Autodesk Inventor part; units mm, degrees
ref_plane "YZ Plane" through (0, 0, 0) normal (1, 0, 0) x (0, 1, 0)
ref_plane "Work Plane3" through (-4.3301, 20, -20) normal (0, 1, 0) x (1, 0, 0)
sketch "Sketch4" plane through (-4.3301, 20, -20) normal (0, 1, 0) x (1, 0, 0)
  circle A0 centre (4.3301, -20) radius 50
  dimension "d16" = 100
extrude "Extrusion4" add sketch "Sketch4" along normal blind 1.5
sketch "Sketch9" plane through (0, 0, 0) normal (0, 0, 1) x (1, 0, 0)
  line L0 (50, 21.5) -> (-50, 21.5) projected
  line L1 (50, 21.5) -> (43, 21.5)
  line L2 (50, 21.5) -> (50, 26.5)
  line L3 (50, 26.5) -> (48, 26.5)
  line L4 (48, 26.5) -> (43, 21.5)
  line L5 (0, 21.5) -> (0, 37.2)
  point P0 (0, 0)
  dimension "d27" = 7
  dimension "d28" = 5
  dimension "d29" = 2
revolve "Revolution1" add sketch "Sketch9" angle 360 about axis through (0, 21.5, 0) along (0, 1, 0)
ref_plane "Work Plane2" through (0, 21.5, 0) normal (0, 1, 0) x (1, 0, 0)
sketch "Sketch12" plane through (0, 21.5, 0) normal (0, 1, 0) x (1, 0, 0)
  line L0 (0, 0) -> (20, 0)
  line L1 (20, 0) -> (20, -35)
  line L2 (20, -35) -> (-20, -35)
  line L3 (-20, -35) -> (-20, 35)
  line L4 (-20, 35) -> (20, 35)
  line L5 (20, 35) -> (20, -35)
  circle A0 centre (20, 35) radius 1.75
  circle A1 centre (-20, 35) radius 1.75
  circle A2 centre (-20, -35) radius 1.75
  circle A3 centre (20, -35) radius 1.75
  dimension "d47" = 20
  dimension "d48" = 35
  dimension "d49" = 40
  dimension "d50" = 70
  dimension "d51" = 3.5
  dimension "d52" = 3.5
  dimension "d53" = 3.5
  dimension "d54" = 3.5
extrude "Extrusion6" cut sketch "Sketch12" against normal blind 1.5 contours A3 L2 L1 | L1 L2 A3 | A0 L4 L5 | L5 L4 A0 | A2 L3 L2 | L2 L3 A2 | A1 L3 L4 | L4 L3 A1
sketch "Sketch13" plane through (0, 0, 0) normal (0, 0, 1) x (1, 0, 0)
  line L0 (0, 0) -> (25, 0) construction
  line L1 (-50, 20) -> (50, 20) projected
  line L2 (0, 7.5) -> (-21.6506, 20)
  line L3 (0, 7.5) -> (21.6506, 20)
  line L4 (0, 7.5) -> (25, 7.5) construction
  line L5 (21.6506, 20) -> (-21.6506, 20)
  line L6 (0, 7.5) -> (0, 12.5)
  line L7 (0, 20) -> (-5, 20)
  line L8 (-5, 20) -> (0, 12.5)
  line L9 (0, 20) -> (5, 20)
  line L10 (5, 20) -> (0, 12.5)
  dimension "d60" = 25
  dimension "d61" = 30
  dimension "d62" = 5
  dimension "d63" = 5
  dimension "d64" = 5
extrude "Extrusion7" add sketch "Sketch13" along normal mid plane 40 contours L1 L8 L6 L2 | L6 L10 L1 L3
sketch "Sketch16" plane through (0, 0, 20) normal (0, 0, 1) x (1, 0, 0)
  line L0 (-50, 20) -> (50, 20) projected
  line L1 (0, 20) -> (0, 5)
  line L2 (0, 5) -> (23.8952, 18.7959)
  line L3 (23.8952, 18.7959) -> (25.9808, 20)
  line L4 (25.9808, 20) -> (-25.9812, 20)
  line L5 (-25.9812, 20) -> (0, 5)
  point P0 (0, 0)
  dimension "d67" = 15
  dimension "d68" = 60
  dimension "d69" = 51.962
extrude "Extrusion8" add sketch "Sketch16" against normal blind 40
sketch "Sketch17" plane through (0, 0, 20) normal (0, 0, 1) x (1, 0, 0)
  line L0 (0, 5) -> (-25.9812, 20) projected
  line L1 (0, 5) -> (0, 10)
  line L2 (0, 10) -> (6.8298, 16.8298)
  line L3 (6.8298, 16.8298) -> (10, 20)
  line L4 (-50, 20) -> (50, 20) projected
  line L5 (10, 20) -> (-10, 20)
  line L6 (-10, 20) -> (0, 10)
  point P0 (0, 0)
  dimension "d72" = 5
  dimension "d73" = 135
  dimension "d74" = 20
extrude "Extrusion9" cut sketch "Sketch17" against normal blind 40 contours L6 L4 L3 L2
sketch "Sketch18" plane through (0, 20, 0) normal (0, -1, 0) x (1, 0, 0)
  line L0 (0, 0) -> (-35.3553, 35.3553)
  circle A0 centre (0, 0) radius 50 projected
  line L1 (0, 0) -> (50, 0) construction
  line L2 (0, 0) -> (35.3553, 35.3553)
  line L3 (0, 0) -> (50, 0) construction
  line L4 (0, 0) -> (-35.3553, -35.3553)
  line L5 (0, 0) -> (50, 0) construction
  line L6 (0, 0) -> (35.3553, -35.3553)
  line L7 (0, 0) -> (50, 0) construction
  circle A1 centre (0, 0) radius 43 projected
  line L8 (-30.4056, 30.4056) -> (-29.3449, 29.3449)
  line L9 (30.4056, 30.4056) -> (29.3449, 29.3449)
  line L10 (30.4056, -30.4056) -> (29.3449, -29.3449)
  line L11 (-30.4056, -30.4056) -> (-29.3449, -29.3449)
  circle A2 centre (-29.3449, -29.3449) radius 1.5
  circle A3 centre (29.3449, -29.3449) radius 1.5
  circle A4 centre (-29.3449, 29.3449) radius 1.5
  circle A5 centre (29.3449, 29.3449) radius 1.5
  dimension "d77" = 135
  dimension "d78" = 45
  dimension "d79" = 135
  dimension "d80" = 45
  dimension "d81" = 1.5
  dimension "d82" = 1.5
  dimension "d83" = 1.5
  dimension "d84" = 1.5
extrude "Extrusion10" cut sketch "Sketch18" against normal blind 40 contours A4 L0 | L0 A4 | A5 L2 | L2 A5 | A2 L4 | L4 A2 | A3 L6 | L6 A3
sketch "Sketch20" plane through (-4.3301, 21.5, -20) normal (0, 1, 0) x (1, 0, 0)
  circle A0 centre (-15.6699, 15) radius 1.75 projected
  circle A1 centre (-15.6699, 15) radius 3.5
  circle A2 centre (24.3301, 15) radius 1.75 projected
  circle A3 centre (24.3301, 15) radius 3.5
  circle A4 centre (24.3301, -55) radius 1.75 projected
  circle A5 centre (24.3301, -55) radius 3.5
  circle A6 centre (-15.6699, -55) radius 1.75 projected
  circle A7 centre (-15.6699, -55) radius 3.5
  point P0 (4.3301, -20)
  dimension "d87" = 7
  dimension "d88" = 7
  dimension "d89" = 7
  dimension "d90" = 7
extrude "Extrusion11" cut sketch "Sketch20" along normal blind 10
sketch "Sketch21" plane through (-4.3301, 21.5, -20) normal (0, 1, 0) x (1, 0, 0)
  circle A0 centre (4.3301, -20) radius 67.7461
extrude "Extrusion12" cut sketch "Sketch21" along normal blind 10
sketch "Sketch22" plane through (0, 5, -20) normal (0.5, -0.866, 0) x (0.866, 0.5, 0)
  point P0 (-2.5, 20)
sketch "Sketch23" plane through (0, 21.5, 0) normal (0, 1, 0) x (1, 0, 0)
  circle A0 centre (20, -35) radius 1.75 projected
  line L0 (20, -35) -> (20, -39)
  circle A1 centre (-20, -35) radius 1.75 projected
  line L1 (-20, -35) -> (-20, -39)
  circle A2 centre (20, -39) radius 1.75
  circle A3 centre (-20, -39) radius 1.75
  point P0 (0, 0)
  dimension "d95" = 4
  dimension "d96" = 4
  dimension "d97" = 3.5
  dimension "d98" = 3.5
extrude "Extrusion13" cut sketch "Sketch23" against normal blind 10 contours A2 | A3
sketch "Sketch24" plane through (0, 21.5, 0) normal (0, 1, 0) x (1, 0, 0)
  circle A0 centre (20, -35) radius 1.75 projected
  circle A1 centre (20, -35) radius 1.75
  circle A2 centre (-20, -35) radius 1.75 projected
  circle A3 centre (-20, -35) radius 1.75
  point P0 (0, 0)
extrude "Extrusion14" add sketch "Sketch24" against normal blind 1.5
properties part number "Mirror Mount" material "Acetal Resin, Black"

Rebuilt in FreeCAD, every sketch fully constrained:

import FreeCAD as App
import Part
import Sketcher
from FreeCAD import Vector
Q = App.Units.Quantity

doc = App.newDocument("Part")
body = doc.addObject("PartDesign::Body", "Body")

sketch1 = doc.addObject("Sketcher::SketchObject", "Sketch")
body.addObject(sketch1)
sketch1.AttachmentSupport = (doc.XZ_Plane, [""])
sketch1.MapMode = "FlatFace"
sketch1.AttachmentOffset = App.Placement(Vector(0, 0, -20), App.Rotation())
sketch1.addGeometry(Part.Circle(Vector(0, 0, 0), Vector(0, 0, 1), 50), False)
sketch1.addConstraint(Sketcher.Constraint("Coincident", 0, 3, -1, 1))
sketch1.addConstraint(Sketcher.Constraint("Diameter", 0, 100.0))
pad1 = doc.addObject("PartDesign::Pad", "Pad")
body.addObject(pad1)
pad1.Profile = sketch1
pad1.Length = 1.5
pad1.Reversed = True

sketch2 = doc.addObject("Sketcher::SketchObject", "Sketch001")
body.addObject(sketch2)
sketch2.AttachmentSupport = (doc.XY_Plane, [""])
sketch2.MapMode = "FlatFace"
sketch2.addGeometry(Part.LineSegment(Vector(43, 21.5, 0), Vector(50, 21.5, 0)), False)
sketch2.addGeometry(Part.LineSegment(Vector(50, 21.5, 0), Vector(50, 26.5, 0)), False)
sketch2.addGeometry(Part.LineSegment(Vector(50, 26.5, 0), Vector(48, 26.5, 0)), False)
sketch2.addGeometry(Part.LineSegment(Vector(48, 26.5, 0), Vector(43, 21.5, 0)), False)
sketch2.addConstraint(Sketcher.Constraint("Coincident", 0, 2, 1, 1))
sketch2.addConstraint(Sketcher.Constraint("Coincident", 1, 2, 2, 1))
sketch2.addConstraint(Sketcher.Constraint("Coincident", 2, 2, 3, 1))
sketch2.addConstraint(Sketcher.Constraint("Coincident", 3, 2, 0, 1))
sketch2.addConstraint(Sketcher.Constraint("Horizontal", 0))
sketch2.addConstraint(Sketcher.Constraint("Vertical", 1))
sketch2.addConstraint(Sketcher.Constraint("Horizontal", 2))
sketch2.addConstraint(Sketcher.Constraint("DistanceX", 0, 1, 0, 2, 7.0))
sketch2.addConstraint(Sketcher.Constraint("DistanceX", 2, 2, 2, 1, 2.0))
sketch2.addConstraint(Sketcher.Constraint("DistanceY", 1, 1, 1, 2, 5.0))
sketch2.addConstraint(Sketcher.Constraint("DistanceX", -1, 1, 0, 2, 50.0))
sketch2.addConstraint(Sketcher.Constraint("DistanceY", -1, 1, 0, 2, 21.5))
revolution = doc.addObject("PartDesign::Revolution", "Revolution")
body.addObject(revolution)
revolution.Profile = sketch2
revolution.ReferenceAxis = (sketch2, ["V_Axis"])
revolution.Angle = 360

sketch3 = doc.addObject("Sketcher::SketchObject", "Sketch002")
body.addObject(sketch3)
sketch3.AttachmentSupport = (doc.XZ_Plane, [""])
sketch3.MapMode = "FlatFace"
sketch3.AttachmentOffset = App.Placement(Vector(0, 0, -21.5), App.Rotation())
sketch3.addGeometry(Part.Circle(Vector(20, 35, 0), Vector(0, 0, 1), 1.8), False)
sketch3.addGeometry(Part.Circle(Vector(20, -35, 0), Vector(0, 0, 1), 1.8), False)
sketch3.addGeometry(Part.Circle(Vector(-20, 35, 0), Vector(0, 0, 1), 1.8), False)
sketch3.addGeometry(Part.Circle(Vector(-20, -35, 0), Vector(0, 0, 1), 1.8), False)
sketch3.addConstraint(Sketcher.Constraint("Equal", 0, 1))
sketch3.addConstraint(Sketcher.Constraint("Equal", 1, 2))
sketch3.addConstraint(Sketcher.Constraint("Equal", 2, 3))
sketch3.addConstraint(Sketcher.Constraint("Symmetric", 1, 3, 2, 3, -1, 1))
sketch3.addConstraint(Sketcher.Constraint("Symmetric", 0, 3, 3, 3, -1, 1))
sketch3.addConstraint(Sketcher.Constraint("Symmetric", 0, 3, 2, 3, -2))
sketch3.addConstraint(Sketcher.Constraint("Diameter", 0, 3.5))
sketch3.addConstraint(Sketcher.Constraint("DistanceX", -1, 1, 0, 3, 20.0))
sketch3.addConstraint(Sketcher.Constraint("DistanceY", -1, 1, 0, 3, 35.0))
pocket1 = doc.addObject("PartDesign::Pocket", "Pocket")
body.addObject(pocket1)
pocket1.Profile = sketch3
pocket1.Length = 1.5
pocket1.Reversed = True

sketch4 = doc.addObject("Sketcher::SketchObject", "Sketch003")
body.addObject(sketch4)
sketch4.AttachmentSupport = (doc.XY_Plane, [""])
sketch4.MapMode = "FlatFace"
sketch4.addGeometry(Part.LineSegment(Vector(-5, 20, 0), Vector(-22, 20, 0)), False)
sketch4.addGeometry(Part.LineSegment(Vector(-22, 20, 0), Vector(0, 8, 0)), False)
sketch4.addGeometry(Part.LineSegment(Vector(0, 8, 0), Vector(22, 20, 0)), False)
sketch4.addGeometry(Part.LineSegment(Vector(22, 20, 0), Vector(5, 20, 0)), False)
sketch4.addGeometry(Part.LineSegment(Vector(5, 20, 0), Vector(0, 12, 0)), False)
sketch4.addGeometry(Part.LineSegment(Vector(0, 12, 0), Vector(-5, 20, 0)), False)
sketch4.addConstraint(Sketcher.Constraint("Coincident", 0, 2, 1, 1))
sketch4.addConstraint(Sketcher.Constraint("Coincident", 1, 2, 2, 1))
sketch4.addConstraint(Sketcher.Constraint("Coincident", 2, 2, 3, 1))
sketch4.addConstraint(Sketcher.Constraint("Coincident", 3, 2, 4, 1))
sketch4.addConstraint(Sketcher.Constraint("Coincident", 4, 2, 5, 1))
sketch4.addConstraint(Sketcher.Constraint("Coincident", 5, 2, 0, 1))
sketch4.addConstraint(Sketcher.Constraint("Horizontal", 0))
sketch4.addConstraint(Sketcher.Constraint("Horizontal", 3))
sketch4.addConstraint(Sketcher.Constraint("Symmetric", 0, 2, 2, 2, -2))
sketch4.addConstraint(Sketcher.Constraint("PointOnObject", 1, 2, -2))
sketch4.addConstraint(Sketcher.Constraint("PointOnObject", 4, 2, -2))
sketch4.addConstraint(Sketcher.Constraint("Equal", 0, 3))
sketch4.addConstraint(Sketcher.Constraint("Angle", 1, Q("-30 deg")))
sketch4.addConstraint(Sketcher.Constraint("Distance", 1, 25.0))
sketch4.addConstraint(Sketcher.Constraint("DistanceX", -1, 1, 3, 2, 5.0))
sketch4.addConstraint(Sketcher.Constraint("DistanceY", 1, 2, 4, 2, 5.0))
sketch4.addConstraint(Sketcher.Constraint("DistanceY", -1, 1, 0, 2, 20.0))
pad2 = doc.addObject("PartDesign::Pad", "Pad001")
body.addObject(pad2)
pad2.Profile = sketch4
pad2.Length = 40
pad2.Midplane = True

sketch5 = doc.addObject("Sketcher::SketchObject", "Sketch004")
body.addObject(sketch5)
sketch5.AttachmentSupport = (doc.XY_Plane, [""])
sketch5.MapMode = "FlatFace"
sketch5.AttachmentOffset = App.Placement(Vector(0, 0, 20), App.Rotation())
sketch5.addGeometry(Part.LineSegment(Vector(-26, 20, 0), Vector(0, 5, 0)), False)
sketch5.addGeometry(Part.LineSegment(Vector(0, 5, 0), Vector(23.9, 18.8, 0)), False)
sketch5.addGeometry(Part.LineSegment(Vector(23.9, 18.8, 0), Vector(26, 20, 0)), False)
sketch5.addGeometry(Part.LineSegment(Vector(26, 20, 0), Vector(-26, 20, 0)), False)
sketch5.addConstraint(Sketcher.Constraint("Coincident", 0, 2, 1, 1))
sketch5.addConstraint(Sketcher.Constraint("Coincident", 1, 2, 2, 1))
sketch5.addConstraint(Sketcher.Constraint("Coincident", 2, 2, 3, 1))
sketch5.addConstraint(Sketcher.Constraint("Coincident", 3, 2, 0, 1))
sketch5.addConstraint(Sketcher.Constraint("Horizontal", 3))
sketch5.addConstraint(Sketcher.Constraint("PointOnObject", 0, 2, -2))
sketch5.addConstraint(Sketcher.Constraint("Parallel", 1, 2))
sketch5.addConstraint(Sketcher.Constraint("DistanceY", 0, 2, 2, 2, 15.0))
sketch5.addConstraint(Sketcher.Constraint("DistanceX", 3, 2, 3, 1, 51.962))
sketch5.addConstraint(Sketcher.Constraint("Angle", 0, Q("-29.9996 deg")))
sketch5.addConstraint(Sketcher.Constraint("DistanceY", -1, 1, 0, 2, 5.0))
sketch5.addConstraint(Sketcher.Constraint("DistanceY", -1, 1, 1, 2, 18.796))
pad3 = doc.addObject("PartDesign::Pad", "Pad002")
body.addObject(pad3)
pad3.Profile = sketch5
pad3.Length = 40
pad3.Reversed = True

sketch6 = doc.addObject("Sketcher::SketchObject", "Sketch005")
body.addObject(sketch6)
sketch6.AttachmentSupport = (doc.XY_Plane, [""])
sketch6.MapMode = "FlatFace"
sketch6.AttachmentOffset = App.Placement(Vector(0, 0, 20), App.Rotation())
sketch6.addGeometry(Part.LineSegment(Vector(-10, 20, 0), Vector(0, 10, 0)), False)
sketch6.addGeometry(Part.LineSegment(Vector(0, 10, 0), Vector(10, 20, 0)), False)
sketch6.addGeometry(Part.LineSegment(Vector(10, 20, 0), Vector(-10, 20, 0)), False)
sketch6.addConstraint(Sketcher.Constraint("Coincident", 0, 2, 1, 1))
sketch6.addConstraint(Sketcher.Constraint("Coincident", 1, 2, 2, 1))
sketch6.addConstraint(Sketcher.Constraint("Coincident", 2, 2, 0, 1))
sketch6.addConstraint(Sketcher.Constraint("Horizontal", 2))
sketch6.addConstraint(Sketcher.Constraint("PointOnObject", 0, 2, -2))
sketch6.addConstraint(Sketcher.Constraint("Perpendicular", 0, 1))
sketch6.addConstraint(Sketcher.Constraint("Equal", 0, 1))
sketch6.addConstraint(Sketcher.Constraint("DistanceX", 2, 2, 2, 1, 20.0))
sketch6.addConstraint(Sketcher.Constraint("DistanceY", -1, 1, 1, 2, 20.0))
pocket2 = doc.addObject("PartDesign::Pocket", "Pocket001")
body.addObject(pocket2)
pocket2.Profile = sketch6
pocket2.Length = 40

sketch7 = doc.addObject("Sketcher::SketchObject", "Sketch006")
body.addObject(sketch7)
sketch7.AttachmentSupport = (doc.XZ_Plane, [""])
sketch7.MapMode = "FlatFace"
sketch7.AttachmentOffset = App.Placement(Vector(0, 0, -20), App.Rotation())
sketch7.addGeometry(Part.Circle(Vector(-29.3, 29.3, 0), Vector(0, 0, 1), 1.5), False)
sketch7.addGeometry(Part.Circle(Vector(29.3, 29.3, 0), Vector(0, 0, 1), 1.5), False)
sketch7.addGeometry(Part.Circle(Vector(-29.3, -29.3, 0), Vector(0, 0, 1), 1.5), False)
sketch7.addGeometry(Part.Circle(Vector(29.3, -29.3, 0), Vector(0, 0, 1), 1.5), False)
sketch7.addConstraint(Sketcher.Constraint("Equal", 0, 1))
sketch7.addConstraint(Sketcher.Constraint("Equal", 1, 2))
sketch7.addConstraint(Sketcher.Constraint("Equal", 2, 3))
sketch7.addConstraint(Sketcher.Constraint("Symmetric", 1, 3, 2, 3, -1, 1))
sketch7.addConstraint(Sketcher.Constraint("Symmetric", 0, 3, 3, 3, -1, 1))
sketch7.addConstraint(Sketcher.Constraint("Symmetric", 0, 3, 1, 3, -2))
sketch7.addConstraint(Sketcher.Constraint("Diameter", 0, 3.0))
sketch7.addConstraint(Sketcher.Constraint("DistanceX", 0, 3, -1, 1, 29.345))
sketch7.addConstraint(Sketcher.Constraint("DistanceY", -1, 1, 0, 3, 29.345))
pocket3 = doc.addObject("PartDesign::Pocket", "Pocket002")
body.addObject(pocket3)
pocket3.Profile = sketch7
pocket3.Length = 40

sketch8 = doc.addObject("Sketcher::SketchObject", "Sketch007")
body.addObject(sketch8)
sketch8.AttachmentSupport = (doc.XZ_Plane, [""])
sketch8.MapMode = "FlatFace"
sketch8.AttachmentOffset = App.Placement(Vector(0, 0, -21.5), App.Rotation())
sketch8.addGeometry(Part.Circle(Vector(-20, -35, 0), Vector(0, 0, 1), 3.5), False)
sketch8.addGeometry(Part.Circle(Vector(-20, -35, 0), Vector(0, 0, 1), 1.8), False)
sketch8.addGeometry(Part.Circle(Vector(20, -35, 0), Vector(0, 0, 1), 3.5), False)
sketch8.addGeometry(Part.Circle(Vector(20, -35, 0), Vector(0, 0, 1), 1.8), False)
sketch8.addGeometry(Part.Circle(Vector(20, 35, 0), Vector(0, 0, 1), 3.5), False)
sketch8.addGeometry(Part.Circle(Vector(20, 35, 0), Vector(0, 0, 1), 1.8), False)
sketch8.addGeometry(Part.Circle(Vector(-20, 35, 0), Vector(0, 0, 1), 3.5), False)
sketch8.addGeometry(Part.Circle(Vector(-20, 35, 0), Vector(0, 0, 1), 1.8), False)
sketch8.addConstraint(Sketcher.Constraint("Coincident", 1, 3, 0, 3))
sketch8.addConstraint(Sketcher.Constraint("Coincident", 3, 3, 2, 3))
sketch8.addConstraint(Sketcher.Constraint("Coincident", 5, 3, 4, 3))
sketch8.addConstraint(Sketcher.Constraint("Coincident", 7, 3, 6, 3))
sketch8.addConstraint(Sketcher.Constraint("Equal", 0, 2))
sketch8.addConstraint(Sketcher.Constraint("Equal", 1, 3))
sketch8.addConstraint(Sketcher.Constraint("Equal", 2, 4))
sketch8.addConstraint(Sketcher.Constraint("Equal", 3, 5))
sketch8.addConstraint(Sketcher.Constraint("Equal", 4, 6))
sketch8.addConstraint(Sketcher.Constraint("Equal", 5, 7))
sketch8.addConstraint(Sketcher.Constraint("Symmetric", 0, 3, 4, 3, -1, 1))
sketch8.addConstraint(Sketcher.Constraint("Symmetric", 2, 3, 6, 3, -1, 1))
sketch8.addConstraint(Sketcher.Constraint("Symmetric", 0, 3, 2, 3, -2))
sketch8.addConstraint(Sketcher.Constraint("Diameter", 0, 7.0))
sketch8.addConstraint(Sketcher.Constraint("Diameter", 1, 3.5))
sketch8.addConstraint(Sketcher.Constraint("DistanceX", 0, 3, -1, 1, 20.0))
sketch8.addConstraint(Sketcher.Constraint("DistanceY", 0, 3, -1, 1, 35.0))
pocket4 = doc.addObject("PartDesign::Pocket", "Pocket003")
body.addObject(pocket4)
pocket4.Profile = sketch8
pocket4.Length = 10

sketch9 = doc.addObject("Sketcher::SketchObject", "Sketch008")
body.addObject(sketch9)
sketch9.AttachmentSupport = (doc.XZ_Plane, [""])
sketch9.MapMode = "FlatFace"
sketch9.AttachmentOffset = App.Placement(Vector(0, 0, -21.5), App.Rotation())
sketch9.addGeometry(Part.Circle(Vector(0, 0, 0), Vector(0, 0, 1), 68), False)
sketch9.addConstraint(Sketcher.Constraint("Coincident", 0, 3, -1, 1))
sketch9.addConstraint(Sketcher.Constraint("Diameter", 0, 135.4922))
pocket5 = doc.addObject("PartDesign::Pocket", "Pocket004")
body.addObject(pocket5)
pocket5.Profile = sketch9
pocket5.Length = 10

sketch10 = doc.addObject("Sketcher::SketchObject", "Sketch009")
body.addObject(sketch10)
sketch10.AttachmentSupport = (doc.XZ_Plane, [""])
sketch10.MapMode = "FlatFace"
sketch10.AttachmentOffset = App.Placement(Vector(0, 0, -21.5), App.Rotation())
sketch10.addGeometry(Part.Circle(Vector(20, 39, 0), Vector(0, 0, 1), 1.8), False)
sketch10.addGeometry(Part.Circle(Vector(-20, 39, 0), Vector(0, 0, 1), 1.8), False)
sketch10.addConstraint(Sketcher.Constraint("Equal", 0, 1))
sketch10.addConstraint(Sketcher.Constraint("Symmetric", 0, 3, 1, 3, -2))
sketch10.addConstraint(Sketcher.Constraint("Diameter", 0, 3.5))
sketch10.addConstraint(Sketcher.Constraint("DistanceX", -1, 1, 0, 3, 20.0))
sketch10.addConstraint(Sketcher.Constraint("DistanceY", -1, 1, 0, 3, 39.0))
pocket6 = doc.addObject("PartDesign::Pocket", "Pocket005")
body.addObject(pocket6)
pocket6.Profile = sketch10
pocket6.Length = 10
pocket6.Reversed = True

sketch11 = doc.addObject("Sketcher::SketchObject", "Sketch010")
body.addObject(sketch11)
sketch11.AttachmentSupport = (doc.XZ_Plane, [""])
sketch11.MapMode = "FlatFace"
sketch11.AttachmentOffset = App.Placement(Vector(0, 0, -21.5), App.Rotation())
sketch11.addGeometry(Part.Circle(Vector(20, 35, 0), Vector(0, 0, 1), 1.8), False)
sketch11.addGeometry(Part.Circle(Vector(-20, 35, 0), Vector(0, 0, 1), 1.8), False)
sketch11.addConstraint(Sketcher.Constraint("Equal", 0, 1))
sketch11.addConstraint(Sketcher.Constraint("Symmetric", 0, 3, 1, 3, -2))
sketch11.addConstraint(Sketcher.Constraint("Diameter", 0, 3.5))
sketch11.addConstraint(Sketcher.Constraint("DistanceX", -1, 1, 0, 3, 20.0))
sketch11.addConstraint(Sketcher.Constraint("DistanceY", -1, 1, 0, 3, 35.0))
pad4 = doc.addObject("PartDesign::Pad", "Pad003")
body.addObject(pad4)
pad4.Profile = sketch11
pad4.Length = 1.5

doc.recompute()
